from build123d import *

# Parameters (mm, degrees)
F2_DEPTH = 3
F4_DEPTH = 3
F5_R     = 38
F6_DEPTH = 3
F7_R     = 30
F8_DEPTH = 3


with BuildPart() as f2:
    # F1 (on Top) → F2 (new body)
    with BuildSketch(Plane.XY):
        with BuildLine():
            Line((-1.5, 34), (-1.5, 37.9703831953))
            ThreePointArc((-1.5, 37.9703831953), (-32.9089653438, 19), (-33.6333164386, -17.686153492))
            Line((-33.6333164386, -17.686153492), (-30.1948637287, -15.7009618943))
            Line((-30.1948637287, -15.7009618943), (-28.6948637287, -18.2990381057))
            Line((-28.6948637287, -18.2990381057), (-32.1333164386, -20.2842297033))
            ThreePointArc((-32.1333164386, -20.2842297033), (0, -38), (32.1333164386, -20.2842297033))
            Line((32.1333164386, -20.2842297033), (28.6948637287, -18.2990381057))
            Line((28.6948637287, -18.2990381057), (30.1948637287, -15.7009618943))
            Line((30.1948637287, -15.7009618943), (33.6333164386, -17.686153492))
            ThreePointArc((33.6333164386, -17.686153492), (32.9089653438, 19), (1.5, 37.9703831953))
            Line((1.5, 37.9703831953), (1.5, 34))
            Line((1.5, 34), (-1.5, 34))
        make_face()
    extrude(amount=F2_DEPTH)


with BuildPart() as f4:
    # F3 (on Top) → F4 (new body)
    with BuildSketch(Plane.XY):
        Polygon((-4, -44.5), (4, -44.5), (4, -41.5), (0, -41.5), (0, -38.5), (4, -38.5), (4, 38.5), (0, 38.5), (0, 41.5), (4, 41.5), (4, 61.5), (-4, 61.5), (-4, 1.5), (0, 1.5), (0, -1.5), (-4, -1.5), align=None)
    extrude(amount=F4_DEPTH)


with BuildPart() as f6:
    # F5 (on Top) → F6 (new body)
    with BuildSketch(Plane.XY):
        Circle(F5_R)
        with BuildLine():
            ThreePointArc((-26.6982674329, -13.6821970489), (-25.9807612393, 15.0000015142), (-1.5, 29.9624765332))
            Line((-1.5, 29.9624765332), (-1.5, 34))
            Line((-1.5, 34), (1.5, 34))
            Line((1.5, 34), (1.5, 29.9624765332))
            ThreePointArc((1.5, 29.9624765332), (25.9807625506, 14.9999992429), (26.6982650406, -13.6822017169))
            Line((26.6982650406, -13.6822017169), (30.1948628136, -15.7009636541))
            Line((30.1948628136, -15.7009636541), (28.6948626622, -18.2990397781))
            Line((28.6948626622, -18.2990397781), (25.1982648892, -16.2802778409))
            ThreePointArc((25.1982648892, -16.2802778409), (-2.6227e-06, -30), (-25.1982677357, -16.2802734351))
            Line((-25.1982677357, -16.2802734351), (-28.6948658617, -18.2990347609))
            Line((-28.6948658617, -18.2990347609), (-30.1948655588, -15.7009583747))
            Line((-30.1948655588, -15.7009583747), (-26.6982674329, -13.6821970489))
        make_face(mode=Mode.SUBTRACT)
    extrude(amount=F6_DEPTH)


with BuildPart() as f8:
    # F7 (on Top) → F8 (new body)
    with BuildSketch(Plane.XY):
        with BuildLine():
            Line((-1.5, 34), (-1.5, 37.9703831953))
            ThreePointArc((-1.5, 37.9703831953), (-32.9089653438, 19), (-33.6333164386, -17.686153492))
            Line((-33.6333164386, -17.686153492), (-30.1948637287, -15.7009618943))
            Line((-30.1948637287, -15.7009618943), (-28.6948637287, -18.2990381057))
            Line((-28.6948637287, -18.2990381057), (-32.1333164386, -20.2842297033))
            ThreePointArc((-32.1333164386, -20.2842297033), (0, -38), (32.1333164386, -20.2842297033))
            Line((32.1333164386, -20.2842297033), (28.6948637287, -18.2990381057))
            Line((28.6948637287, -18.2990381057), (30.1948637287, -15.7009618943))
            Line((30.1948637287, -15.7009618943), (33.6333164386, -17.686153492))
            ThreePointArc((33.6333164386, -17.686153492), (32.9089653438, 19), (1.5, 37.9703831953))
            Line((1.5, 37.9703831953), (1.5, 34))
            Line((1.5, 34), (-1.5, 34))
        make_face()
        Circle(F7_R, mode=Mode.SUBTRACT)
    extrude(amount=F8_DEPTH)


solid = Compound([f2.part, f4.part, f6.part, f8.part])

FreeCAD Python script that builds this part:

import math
import FreeCAD as App
import Part
import Sketcher
Q = App.Units.Quantity

doc = App.newDocument("Part")
body = doc.addObject("PartDesign::Body", "Body")

# Sketch on XY plane
sketch1 = doc.addObject("Sketcher::SketchObject", "Sketch")
body.addObject(sketch1)
sketch1.AttachmentSupport = (doc.XY_Plane, [""])
sketch1.MapMode = "FlatFace"
sketch1.addGeometry([
    Part.LineSegment(App.Vector(-1.5, 34, 0), App.Vector(-1.5, 38, 0)),  # 0
    Part.ArcOfCircle(Part.Circle(App.Vector(0, 0, 0), App.Vector(0, 0, 1), 38), math.radians(92), math.radians(208)),  # 1
    Part.LineSegment(App.Vector(-33.6, -17.7, 0), App.Vector(-30.2, -15.7, 0)),  # 2
    Part.LineSegment(App.Vector(-30.2, -15.7, 0), App.Vector(-28.7, -18.3, 0)),  # 3
    Part.LineSegment(App.Vector(-28.7, -18.3, 0), App.Vector(-32.1, -20.3, 0)),  # 4
    Part.ArcOfCircle(Part.Circle(App.Vector(0, 0, 0), App.Vector(0, 0, 1), 38), math.radians(-148), math.radians(-32)),  # 5
    Part.LineSegment(App.Vector(32.1, -20.3, 0), App.Vector(28.7, -18.3, 0)),  # 6
    Part.LineSegment(App.Vector(28.7, -18.3, 0), App.Vector(30.2, -15.7, 0)),  # 7
    Part.LineSegment(App.Vector(30.2, -15.7, 0), App.Vector(33.6, -17.7, 0)),  # 8
    Part.ArcOfCircle(Part.Circle(App.Vector(0, 0, 0), App.Vector(0, 0, 1), 38), math.radians(-28), math.radians(88)),  # 9
    Part.LineSegment(App.Vector(1.5, 38, 0), App.Vector(1.5, 34, 0)),  # 10
    Part.LineSegment(App.Vector(1.5, 34, 0), App.Vector(-1.5, 34, 0)),  # 11
], False)
sketch1.addConstraint([
    Sketcher.Constraint("Coincident", 0, 2, 1, 1),
    Sketcher.Constraint("Coincident", 1, 2, 2, 1),
    Sketcher.Constraint("Coincident", 2, 2, 3, 1),
    Sketcher.Constraint("Coincident", 3, 2, 4, 1),
    Sketcher.Constraint("Coincident", 4, 2, 5, 1),
    Sketcher.Constraint("Coincident", 5, 2, 6, 1),
    Sketcher.Constraint("Coincident", 6, 2, 7, 1),
    Sketcher.Constraint("Coincident", 7, 2, 8, 1),
    Sketcher.Constraint("Coincident", 8, 2, 9, 1),
    Sketcher.Constraint("Coincident", 9, 2, 10, 1),
    Sketcher.Constraint("Coincident", 10, 2, 11, 1),
    Sketcher.Constraint("Coincident", 11, 2, 0, 1),
    Sketcher.Constraint("Vertical", 0),
    Sketcher.Constraint("Vertical", 10),
    Sketcher.Constraint("Horizontal", 11),
    Sketcher.Constraint("Coincident", 1, 3, -1, 1),
    Sketcher.Constraint("Coincident", 5, 3, -1, 1),
    Sketcher.Constraint("Coincident", 9, 3, -1, 1),
    Sketcher.Constraint("Equal", 1, 5),
    Sketcher.Constraint("Equal", 5, 9),
    Sketcher.Constraint("Symmetric", 3, 2, 6, 2, -2),
    Sketcher.Constraint("Symmetric", 2, 2, 7, 2, -2),
    Sketcher.Constraint("Perpendicular", 2, 3),
    Sketcher.Constraint("Perpendicular", 3, 4),
    Sketcher.Constraint("Perpendicular", 6, 7),
    Sketcher.Constraint("Perpendicular", 7, 8),
    Sketcher.Constraint("Horizontal", 0, 2, 9, 2),
    Sketcher.Constraint("Equal", 2, 4),
    Sketcher.Constraint("Radius", 1, 38.0),
    Sketcher.Constraint("DistanceX", 11, 2, 11, 1, 3.0),
    Sketcher.Constraint("Angle", 2, Q("30 deg")),
    Sketcher.Constraint("Distance", 3, 3.0),
    Sketcher.Constraint("DistanceY", -1, 1, 10, 2, 34.0),
    Sketcher.Constraint("DistanceY", 2, 2, -1, 1, 15.700962),
])
pad1 = doc.addObject("PartDesign::Pad", "Pad")
body.addObject(pad1)
pad1.Profile = sketch1
pad1.Length = 3
body2 = doc.addObject("PartDesign::Body", "Body001")

# Sketch on XY plane
sketch2 = doc.addObject("Sketcher::SketchObject", "Sketch001")
body2.addObject(sketch2)
sketch2.AttachmentSupport = (doc.getObject("XY_Plane001"), [""])
sketch2.MapMode = "FlatFace"
sketch2.addGeometry([
    Part.LineSegment(App.Vector(-4, -44.5, 0), App.Vector(4, -44.5, 0)),  # 0
    Part.LineSegment(App.Vector(4, -44.5, 0), App.Vector(4, -41.5, 0)),  # 1
    Part.LineSegment(App.Vector(4, -41.5, 0), App.Vector(0, -41.5, 0)),  # 2
    Part.LineSegment(App.Vector(0, -41.5, 0), App.Vector(0, -38.5, 0)),  # 3
    Part.LineSegment(App.Vector(0, -38.5, 0), App.Vector(4, -38.5, 0)),  # 4
    Part.LineSegment(App.Vector(4, -38.5, 0), App.Vector(4, 38.5, 0)),  # 5
    Part.LineSegment(App.Vector(4, 38.5, 0), App.Vector(0, 38.5, 0)),  # 6
    Part.LineSegment(App.Vector(0, 38.5, 0), App.Vector(0, 41.5, 0)),  # 7
    Part.LineSegment(App.Vector(0, 41.5, 0), App.Vector(4, 41.5, 0)),  # 8
    Part.LineSegment(App.Vector(4, 41.5, 0), App.Vector(4, 61.5, 0)),  # 9
    Part.LineSegment(App.Vector(4, 61.5, 0), App.Vector(-4, 61.5, 0)),  # 10
    Part.LineSegment(App.Vector(-4, 61.5, 0), App.Vector(-4, 1.5, 0)),  # 11
    Part.LineSegment(App.Vector(-4, 1.5, 0), App.Vector(0, 1.5, 0)),  # 12
    Part.LineSegment(App.Vector(0, 1.5, 0), App.Vector(0, -1.5, 0)),  # 13
    Part.LineSegment(App.Vector(0, -1.5, 0), App.Vector(-4, -1.5, 0)),  # 14
    Part.LineSegment(App.Vector(-4, -1.5, 0), App.Vector(-4, -44.5, 0)),  # 15
], False)
sketch2.addConstraint([
    Sketcher.Constraint("Coincident", 0, 2, 1, 1),
    Sketcher.Constraint("Coincident", 1, 2, 2, 1),
    Sketcher.Constraint("Coincident", 2, 2, 3, 1),
    Sketcher.Constraint("Coincident", 3, 2, 4, 1),
    Sketcher.Constraint("Coincident", 4, 2, 5, 1),
    Sketcher.Constraint("Coincident", 5, 2, 6, 1),
    Sketcher.Constraint("Coincident", 6, 2, 7, 1),
    Sketcher.Constraint("Coincident", 7, 2, 8, 1),
    Sketcher.Constraint("Coincident", 8, 2, 9, 1),
    Sketcher.Constraint("Coincident", 9, 2, 10, 1),
    Sketcher.Constraint("Coincident", 10, 2, 11, 1),
    Sketcher.Constraint("Coincident", 11, 2, 12, 1),
    Sketcher.Constraint("Coincident", 12, 2, 13, 1),
    Sketcher.Constraint("Coincident", 13, 2, 14, 1),
    Sketcher.Constraint("Coincident", 14, 2, 15, 1),
    Sketcher.Constraint("Coincident", 15, 2, 0, 1),
    Sketcher.Constraint("Horizontal", 0),
    Sketcher.Constraint("Vertical", 1),
    Sketcher.Constraint("Horizontal", 2),
    Sketcher.Constraint("Vertical", 3),
    Sketcher.Constraint("Horizontal", 4),
    Sketcher.Constraint("Vertical", 5),
    Sketcher.Constraint("Horizontal", 6),
    Sketcher.Constraint("Vertical", 7),
    Sketcher.Constraint("Horizontal", 8),
    Sketcher.Constraint("Vertical", 9),
    Sketcher.Constraint("Horizontal", 10),
    Sketcher.Constraint("Vertical", 11),
    Sketcher.Constraint("Horizontal", 12),
    Sketcher.Constraint("Vertical", 13),
    Sketcher.Constraint("Horizontal", 14),
    Sketcher.Constraint("Vertical", 15),
    Sketcher.Constraint("Symmetric", 3, 2, 6, 2, -1, 1),
    Sketcher.Constraint("Symmetric", 12, 2, 13, 2, -1, 1),
    Sketcher.Constraint("Symmetric", 2, 2, 7, 2, -1),
    Sketcher.Constraint("Vertical", 1, 2, 4, 2),
    Sketcher.Constraint("Vertical", 5, 2, 8, 2),
    Sketcher.Constraint("Vertical", 11, 2, 14, 2),
    Sketcher.Constraint("Equal", 8, 12),
    Sketcher.Constraint("Equal", 1, 3),
    Sketcher.Constraint("Equal", 7, 13),
    Sketcher.Constraint("DistanceX", 0, 1, 0, 2, 8.0),
    Sketcher.Constraint("DistanceY", 1, 1, 1, 2, 3.0),
    Sketcher.Constraint("DistanceY", 5, 1, 5, 2, 77.0),
    Sketcher.Constraint("DistanceY", 9, 1, 9, 2, 20.0),
])
pad2 = doc.addObject("PartDesign::Pad", "Pad001")
body2.addObject(pad2)
pad2.Profile = sketch2
pad2.Length = 3
body3 = doc.addObject("PartDesign::Body", "Body002")

# Sketch on XY plane
sketch3 = doc.addObject("Sketcher::SketchObject", "Sketch002")
body3.addObject(sketch3)
sketch3.AttachmentSupport = (doc.getObject("XY_Plane002"), [""])
sketch3.MapMode = "FlatFace"
sketch3.addGeometry([
    Part.Circle(App.Vector(0, 0, 0), App.Vector(0, 0, 1), 38),  # 0
    Part.LineSegment(App.Vector(-30.2, -15.7, 0), App.Vector(-26.7, -13.7, 0)),  # 1
    Part.ArcOfCircle(Part.Circle(App.Vector(0, 0, 0), App.Vector(0, 0, 1), 30), math.radians(93), math.radians(207)),  # 2
    Part.LineSegment(App.Vector(-1.5, 30, 0), App.Vector(-1.5, 34, 0)),  # 3
    Part.LineSegment(App.Vector(-1.5, 34, 0), App.Vector(1.5, 34, 0)),  # 4
    Part.LineSegment(App.Vector(1.5, 34, 0), App.Vector(1.5, 30, 0)),  # 5
    Part.ArcOfCircle(Part.Circle(App.Vector(0, 0, 0), App.Vector(0, 0, 1), 30), math.radians(-27), math.radians(87)),  # 6
    Part.LineSegment(App.Vector(26.7, -13.7, 0), App.Vector(30.2, -15.7, 0)),  # 7
    Part.LineSegment(App.Vector(30.2, -15.7, 0), App.Vector(28.7, -18.3, 0)),  # 8
    Part.LineSegment(App.Vector(28.7, -18.3, 0), App.Vector(25.2, -16.3, 0)),  # 9
    Part.ArcOfCircle(Part.Circle(App.Vector(0, 0, 0), App.Vector(0, 0, 1), 30), math.radians(-147), math.radians(-33)),  # 10
    Part.LineSegment(App.Vector(-25.2, -16.3, 0), App.Vector(-28.7, -18.3, 0)),  # 11
    Part.LineSegment(App.Vector(-28.7, -18.3, 0), App.Vector(-30.2, -15.7, 0)),  # 12
], False)
sketch3.addConstraint([
    Sketcher.Constraint("Coincident", 1, 2, 2, 2),
    Sketcher.Constraint("Coincident", 2, 1, 3, 1),
    Sketcher.Constraint("Coincident", 3, 2, 4, 1),
    Sketcher.Constraint("Coincident", 4, 2, 5, 1),
    Sketcher.Constraint("Coincident", 5, 2, 6, 2),
    Sketcher.Constraint("Coincident", 6, 1, 7, 1),
    Sketcher.Constraint("Coincident", 7, 2, 8, 1),
    Sketcher.Constraint("Coincident", 8, 2, 9, 1),
    Sketcher.Constraint("Coincident", 9, 2, 10, 2),
    Sketcher.Constraint("Coincident", 10, 1, 11, 1),
    Sketcher.Constraint("Coincident", 11, 2, 12, 1),
    Sketcher.Constraint("Coincident", 12, 2, 1, 1),
    Sketcher.Constraint("Vertical", 3),
    Sketcher.Constraint("Horizontal", 4),
    Sketcher.Constraint("Vertical", 5),
    Sketcher.Constraint("Coincident", 0, 3, -1, 1),
    Sketcher.Constraint("Coincident", 2, 3, -1, 1),
    Sketcher.Constraint("Coincident", 6, 3, -1, 1),
    Sketcher.Constraint("Coincident", 10, 3, -1, 1),
    Sketcher.Constraint("Equal", 2, 6),
    Sketcher.Constraint("Equal", 6, 10),
    Sketcher.Constraint("Symmetric", 8, 2, 11, 2, -2),
    Sketcher.Constraint("Symmetric", 7, 2, 12, 2, -2),
    Sketcher.Constraint("Perpendicular", 7, 8),
    Sketcher.Constraint("Perpendicular", 8, 9),
    Sketcher.Constraint("Parallel", 1, 11),
    Sketcher.Constraint("Perpendicular", 11, 12),
    Sketcher.Constraint("Horizontal", 2, 1, 5, 2),
    Sketcher.Constraint("Equal", 7, 9),
    Sketcher.Constraint("Diameter", 0, 76.0),
    Sketcher.Constraint("Radius", 2, 30.0),
    Sketcher.Constraint("DistanceX", 4, 1, 4, 2, 3.0),
    Sketcher.Constraint("Angle", 1, Q("29.999993 deg")),
    Sketcher.Constraint("Distance", 8, 3.0),
    Sketcher.Constraint("DistanceY", -1, 1, 3, 2, 34.0),
    Sketcher.Constraint("DistanceX", 11, 2, 10, 1, 3.496598),
])
pad3 = doc.addObject("PartDesign::Pad", "Pad002")
body3.addObject(pad3)
pad3.Profile = sketch3
pad3.Length = 3
body4 = doc.addObject("PartDesign::Body", "Body003")

# Sketch on XY plane
sketch4 = doc.addObject("Sketcher::SketchObject", "Sketch003")
body4.addObject(sketch4)
sketch4.AttachmentSupport = (doc.getObject("XY_Plane003"), [""])
sketch4.MapMode = "FlatFace"
sketch4.addGeometry([
    Part.LineSegment(App.Vector(-1.5, 34, 0), App.Vector(-1.5, 38, 0)),  # 0
    Part.ArcOfCircle(Part.Circle(App.Vector(0, 0, 0), App.Vector(0, 0, 1), 38), math.radians(92), math.radians(208)),  # 1
    Part.LineSegment(App.Vector(-33.6, -17.7, 0), App.Vector(-30.2, -15.7, 0)),  # 2
    Part.LineSegment(App.Vector(-30.2, -15.7, 0), App.Vector(-28.7, -18.3, 0)),  # 3
    Part.LineSegment(App.Vector(-28.7, -18.3, 0), App.Vector(-32.1, -20.3, 0)),  # 4
    Part.ArcOfCircle(Part.Circle(App.Vector(0, 0, 0), App.Vector(0, 0, 1), 38), math.radians(-148), math.radians(-32)),  # 5
    Part.LineSegment(App.Vector(32.1, -20.3, 0), App.Vector(28.7, -18.3, 0)),  # 6
    Part.LineSegment(App.Vector(28.7, -18.3, 0), App.Vector(30.2, -15.7, 0)),  # 7
    Part.LineSegment(App.Vector(30.2, -15.7, 0), App.Vector(33.6, -17.7, 0)),  # 8
    Part.ArcOfCircle(Part.Circle(App.Vector(0, 0, 0), App.Vector(0, 0, 1), 38), math.radians(-28), math.radians(88)),  # 9
    Part.LineSegment(App.Vector(1.5, 38, 0), App.Vector(1.5, 34, 0)),  # 10
    Part.LineSegment(App.Vector(1.5, 34, 0), App.Vector(-1.5, 34, 0)),  # 11
    Part.Circle(App.Vector(0, 0, 0), App.Vector(0, 0, 1), 30),  # 12
], False)
sketch4.addConstraint([
    Sketcher.Constraint("Coincident", 0, 2, 1, 1),
    Sketcher.Constraint("Coincident", 1, 2, 2, 1),
    Sketcher.Constraint("Coincident", 2, 2, 3, 1),
    Sketcher.Constraint("Coincident", 3, 2, 4, 1),
    Sketcher.Constraint("Coincident", 4, 2, 5, 1),
    Sketcher.Constraint("Coincident", 5, 2, 6, 1),
    Sketcher.Constraint("Coincident", 6, 2, 7, 1),
    Sketcher.Constraint("Coincident", 7, 2, 8, 1),
    Sketcher.Constraint("Coincident", 8, 2, 9, 1),
    Sketcher.Constraint("Coincident", 9, 2, 10, 1),
    Sketcher.Constraint("Coincident", 10, 2, 11, 1),
    Sketcher.Constraint("Coincident", 11, 2, 0, 1),
    Sketcher.Constraint("Vertical", 0),
    Sketcher.Constraint("Vertical", 10),
    Sketcher.Constraint("Horizontal", 11),
    Sketcher.Constraint("Coincident", 1, 3, -1, 1),
    Sketcher.Constraint("Coincident", 5, 3, -1, 1),
    Sketcher.Constraint("Coincident", 9, 3, -1, 1),
    Sketcher.Constraint("Coincident", 12, 3, -1, 1),
    Sketcher.Constraint("Equal", 1, 5),
    Sketcher.Constraint("Equal", 5, 9),
    Sketcher.Constraint("Symmetric", 3, 2, 6, 2, -2),
    Sketcher.Constraint("Symmetric", 2, 2, 7, 2, -2),
    Sketcher.Constraint("Perpendicular", 2, 3),
    Sketcher.Constraint("Perpendicular", 3, 4),
    Sketcher.Constraint("Perpendicular", 6, 7),
    Sketcher.Constraint("Perpendicular", 7, 8),
    Sketcher.Constraint("Horizontal", 0, 2, 9, 2),
    Sketcher.Constraint("Equal", 2, 4),
    Sketcher.Constraint("Diameter", 12, 60.0),
    Sketcher.Constraint("Radius", 1, 38.0),
    Sketcher.Constraint("DistanceX", 11, 2, 11, 1, 3.0),
    Sketcher.Constraint("Angle", 2, Q("30 deg")),
    Sketcher.Constraint("Distance", 3, 3.0),
    Sketcher.Constraint("DistanceY", -1, 1, 10, 2, 34.0),
    Sketcher.Constraint("DistanceY", 2, 2, -1, 1, 15.700962),
])
pad4 = doc.addObject("PartDesign::Pad", "Pad003")
body4.addObject(pad4)
pad4.Profile = sketch4
pad4.Length = 3

doc.recompute()
